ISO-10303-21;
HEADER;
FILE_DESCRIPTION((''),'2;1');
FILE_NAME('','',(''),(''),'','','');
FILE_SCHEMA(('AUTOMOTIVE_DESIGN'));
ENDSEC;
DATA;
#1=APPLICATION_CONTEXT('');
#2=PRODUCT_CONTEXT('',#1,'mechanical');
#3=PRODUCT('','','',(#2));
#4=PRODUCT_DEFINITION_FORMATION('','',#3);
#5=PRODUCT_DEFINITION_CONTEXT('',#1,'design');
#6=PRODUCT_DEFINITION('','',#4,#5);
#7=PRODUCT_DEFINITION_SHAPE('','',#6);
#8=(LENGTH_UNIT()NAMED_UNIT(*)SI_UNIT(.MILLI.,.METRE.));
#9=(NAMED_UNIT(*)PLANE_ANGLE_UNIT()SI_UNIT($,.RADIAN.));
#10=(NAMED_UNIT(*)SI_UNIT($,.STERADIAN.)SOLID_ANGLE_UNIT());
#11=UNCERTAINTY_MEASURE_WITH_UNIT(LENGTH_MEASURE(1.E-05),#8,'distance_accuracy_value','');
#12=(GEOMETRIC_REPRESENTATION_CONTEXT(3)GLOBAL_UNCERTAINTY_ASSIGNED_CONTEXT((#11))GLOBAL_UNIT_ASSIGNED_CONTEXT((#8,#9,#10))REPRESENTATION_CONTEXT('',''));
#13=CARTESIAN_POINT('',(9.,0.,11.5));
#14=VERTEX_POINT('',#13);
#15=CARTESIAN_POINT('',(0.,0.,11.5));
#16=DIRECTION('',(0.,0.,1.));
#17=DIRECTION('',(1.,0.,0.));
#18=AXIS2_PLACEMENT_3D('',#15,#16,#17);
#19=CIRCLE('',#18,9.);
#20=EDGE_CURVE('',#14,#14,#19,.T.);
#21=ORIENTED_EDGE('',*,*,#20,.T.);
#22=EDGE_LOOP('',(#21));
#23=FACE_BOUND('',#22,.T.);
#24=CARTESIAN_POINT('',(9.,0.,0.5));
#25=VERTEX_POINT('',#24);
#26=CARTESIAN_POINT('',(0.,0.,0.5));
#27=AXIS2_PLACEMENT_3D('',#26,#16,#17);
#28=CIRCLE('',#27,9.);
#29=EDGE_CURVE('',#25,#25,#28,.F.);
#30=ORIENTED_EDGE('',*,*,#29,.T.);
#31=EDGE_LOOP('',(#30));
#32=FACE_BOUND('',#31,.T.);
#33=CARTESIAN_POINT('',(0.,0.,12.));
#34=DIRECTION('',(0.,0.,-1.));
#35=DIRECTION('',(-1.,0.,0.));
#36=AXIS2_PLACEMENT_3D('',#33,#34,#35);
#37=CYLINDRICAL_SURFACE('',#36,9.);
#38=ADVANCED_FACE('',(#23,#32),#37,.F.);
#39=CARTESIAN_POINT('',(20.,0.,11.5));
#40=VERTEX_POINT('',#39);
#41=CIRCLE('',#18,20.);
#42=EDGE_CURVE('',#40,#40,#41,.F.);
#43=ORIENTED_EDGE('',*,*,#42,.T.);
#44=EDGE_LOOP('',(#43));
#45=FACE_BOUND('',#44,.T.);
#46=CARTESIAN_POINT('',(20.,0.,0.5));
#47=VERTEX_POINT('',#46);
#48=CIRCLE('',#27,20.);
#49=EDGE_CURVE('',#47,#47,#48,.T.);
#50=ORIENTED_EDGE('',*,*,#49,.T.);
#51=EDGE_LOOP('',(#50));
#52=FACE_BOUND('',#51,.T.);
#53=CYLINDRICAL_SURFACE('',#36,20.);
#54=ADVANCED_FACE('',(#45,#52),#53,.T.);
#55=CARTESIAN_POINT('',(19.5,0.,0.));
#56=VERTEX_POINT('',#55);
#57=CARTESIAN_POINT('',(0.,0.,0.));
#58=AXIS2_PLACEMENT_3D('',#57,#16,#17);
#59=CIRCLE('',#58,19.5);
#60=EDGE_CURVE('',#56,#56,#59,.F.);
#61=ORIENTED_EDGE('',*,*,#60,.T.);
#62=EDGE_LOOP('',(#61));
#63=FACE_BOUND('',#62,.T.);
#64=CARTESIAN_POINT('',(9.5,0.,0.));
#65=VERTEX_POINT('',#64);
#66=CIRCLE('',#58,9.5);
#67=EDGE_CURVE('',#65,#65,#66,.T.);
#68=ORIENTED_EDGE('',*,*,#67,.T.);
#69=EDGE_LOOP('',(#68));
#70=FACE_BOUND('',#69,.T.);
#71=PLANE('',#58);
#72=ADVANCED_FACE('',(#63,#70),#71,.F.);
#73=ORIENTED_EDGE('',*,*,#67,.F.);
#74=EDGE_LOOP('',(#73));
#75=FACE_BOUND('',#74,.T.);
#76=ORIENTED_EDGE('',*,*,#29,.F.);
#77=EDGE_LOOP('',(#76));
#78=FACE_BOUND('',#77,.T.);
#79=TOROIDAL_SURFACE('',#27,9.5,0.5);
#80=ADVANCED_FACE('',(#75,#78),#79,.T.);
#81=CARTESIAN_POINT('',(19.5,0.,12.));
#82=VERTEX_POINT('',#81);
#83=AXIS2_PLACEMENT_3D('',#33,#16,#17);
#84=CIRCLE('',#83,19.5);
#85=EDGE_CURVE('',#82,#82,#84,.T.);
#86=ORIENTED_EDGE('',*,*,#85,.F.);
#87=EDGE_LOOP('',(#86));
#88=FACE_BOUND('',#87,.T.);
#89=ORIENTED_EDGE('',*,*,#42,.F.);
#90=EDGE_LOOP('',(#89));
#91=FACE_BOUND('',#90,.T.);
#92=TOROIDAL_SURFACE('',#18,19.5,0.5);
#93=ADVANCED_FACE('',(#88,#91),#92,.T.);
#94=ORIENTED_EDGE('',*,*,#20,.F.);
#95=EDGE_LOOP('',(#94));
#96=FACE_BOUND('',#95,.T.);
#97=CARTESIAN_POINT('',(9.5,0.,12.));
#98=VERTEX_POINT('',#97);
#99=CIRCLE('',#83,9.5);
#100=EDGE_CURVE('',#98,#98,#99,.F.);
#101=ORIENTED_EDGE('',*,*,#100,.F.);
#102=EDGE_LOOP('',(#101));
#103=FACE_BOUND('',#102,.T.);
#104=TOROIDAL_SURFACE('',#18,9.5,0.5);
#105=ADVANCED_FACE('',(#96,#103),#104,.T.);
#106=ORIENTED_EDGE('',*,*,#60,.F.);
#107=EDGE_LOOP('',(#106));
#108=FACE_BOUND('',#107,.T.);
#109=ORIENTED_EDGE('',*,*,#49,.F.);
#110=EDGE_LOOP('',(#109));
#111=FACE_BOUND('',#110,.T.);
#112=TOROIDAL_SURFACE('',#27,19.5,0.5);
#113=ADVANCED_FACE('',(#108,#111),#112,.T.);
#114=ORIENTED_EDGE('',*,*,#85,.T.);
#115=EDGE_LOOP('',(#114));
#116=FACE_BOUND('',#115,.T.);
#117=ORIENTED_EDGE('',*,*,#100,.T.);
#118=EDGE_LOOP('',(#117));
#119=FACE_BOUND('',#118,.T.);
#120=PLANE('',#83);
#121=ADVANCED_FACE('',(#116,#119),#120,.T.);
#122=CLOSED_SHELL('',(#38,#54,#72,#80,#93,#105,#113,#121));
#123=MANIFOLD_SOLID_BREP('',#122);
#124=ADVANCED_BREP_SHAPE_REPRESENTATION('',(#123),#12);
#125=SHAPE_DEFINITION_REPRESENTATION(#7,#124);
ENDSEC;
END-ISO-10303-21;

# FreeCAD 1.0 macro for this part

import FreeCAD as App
import Part
import Sketcher

V = App.Vector
Q = App.Units.Quantity


def edges_at(feature, points):
    """Names of the edges that pass closest to the given points."""
    edges = feature.Shape.Edges
    near = lambda p: min(range(len(edges)), key=lambda i: edges[i].distToShape(Part.Vertex(*p))[0])
    return sorted({f"Edge{near(p) + 1}" for p in points})

doc = App.newDocument("Part")
body = doc.addObject("PartDesign::Body", "Body")

sketch1 = doc.addObject("Sketcher::SketchObject", "Sketch")
body.addObject(sketch1)
sketch1.AttachmentSupport = (doc.XY_Plane, [""])
sketch1.MapMode = "FlatFace"
sketch1.addGeometry(Part.Circle(V(0, 0, 0), V(0, 0, 1), 20), False)
sketch1.addConstraint([
    Sketcher.Constraint("Coincident", 0, 3, -1, 1),
    Sketcher.Constraint("Diameter", 0, Q("40 mm")),
])
pad1 = doc.addObject("PartDesign::Pad", "Pad")
body.addObject(pad1)
pad1.Profile = sketch1
pad1.Length = 12

sketch2 = doc.addObject("Sketcher::SketchObject", "Sketch001")
body.addObject(sketch2)
sketch2.AttachmentSupport = (doc.XY_Plane, [""])
sketch2.MapMode = "FlatFace"
sketch2.addGeometry(Part.Circle(V(0, 0, 0), V(0, 0, 1), 9), False)
sketch2.addConstraint([
    Sketcher.Constraint("Coincident", 0, 3, -1, 1),
    Sketcher.Constraint("Diameter", 0, Q("18 mm")),
])
pocket1 = doc.addObject("PartDesign::Pocket", "Pocket")
body.addObject(pocket1)
pocket1.Profile = sketch2
pocket1.Length = 12
pocket1.Reversed = True
doc.recompute()

fillet = doc.addObject("PartDesign::Fillet", "Fillet")
body.addObject(fillet)
fillet.Base = (pocket1, edges_at(pocket1, [
    (-20, 0, 0),
    (-20, 0, 12),
    (9, 0, 12),
    (9, 0, 0),
]))
fillet.Radius = 0.5

doc.recompute()
